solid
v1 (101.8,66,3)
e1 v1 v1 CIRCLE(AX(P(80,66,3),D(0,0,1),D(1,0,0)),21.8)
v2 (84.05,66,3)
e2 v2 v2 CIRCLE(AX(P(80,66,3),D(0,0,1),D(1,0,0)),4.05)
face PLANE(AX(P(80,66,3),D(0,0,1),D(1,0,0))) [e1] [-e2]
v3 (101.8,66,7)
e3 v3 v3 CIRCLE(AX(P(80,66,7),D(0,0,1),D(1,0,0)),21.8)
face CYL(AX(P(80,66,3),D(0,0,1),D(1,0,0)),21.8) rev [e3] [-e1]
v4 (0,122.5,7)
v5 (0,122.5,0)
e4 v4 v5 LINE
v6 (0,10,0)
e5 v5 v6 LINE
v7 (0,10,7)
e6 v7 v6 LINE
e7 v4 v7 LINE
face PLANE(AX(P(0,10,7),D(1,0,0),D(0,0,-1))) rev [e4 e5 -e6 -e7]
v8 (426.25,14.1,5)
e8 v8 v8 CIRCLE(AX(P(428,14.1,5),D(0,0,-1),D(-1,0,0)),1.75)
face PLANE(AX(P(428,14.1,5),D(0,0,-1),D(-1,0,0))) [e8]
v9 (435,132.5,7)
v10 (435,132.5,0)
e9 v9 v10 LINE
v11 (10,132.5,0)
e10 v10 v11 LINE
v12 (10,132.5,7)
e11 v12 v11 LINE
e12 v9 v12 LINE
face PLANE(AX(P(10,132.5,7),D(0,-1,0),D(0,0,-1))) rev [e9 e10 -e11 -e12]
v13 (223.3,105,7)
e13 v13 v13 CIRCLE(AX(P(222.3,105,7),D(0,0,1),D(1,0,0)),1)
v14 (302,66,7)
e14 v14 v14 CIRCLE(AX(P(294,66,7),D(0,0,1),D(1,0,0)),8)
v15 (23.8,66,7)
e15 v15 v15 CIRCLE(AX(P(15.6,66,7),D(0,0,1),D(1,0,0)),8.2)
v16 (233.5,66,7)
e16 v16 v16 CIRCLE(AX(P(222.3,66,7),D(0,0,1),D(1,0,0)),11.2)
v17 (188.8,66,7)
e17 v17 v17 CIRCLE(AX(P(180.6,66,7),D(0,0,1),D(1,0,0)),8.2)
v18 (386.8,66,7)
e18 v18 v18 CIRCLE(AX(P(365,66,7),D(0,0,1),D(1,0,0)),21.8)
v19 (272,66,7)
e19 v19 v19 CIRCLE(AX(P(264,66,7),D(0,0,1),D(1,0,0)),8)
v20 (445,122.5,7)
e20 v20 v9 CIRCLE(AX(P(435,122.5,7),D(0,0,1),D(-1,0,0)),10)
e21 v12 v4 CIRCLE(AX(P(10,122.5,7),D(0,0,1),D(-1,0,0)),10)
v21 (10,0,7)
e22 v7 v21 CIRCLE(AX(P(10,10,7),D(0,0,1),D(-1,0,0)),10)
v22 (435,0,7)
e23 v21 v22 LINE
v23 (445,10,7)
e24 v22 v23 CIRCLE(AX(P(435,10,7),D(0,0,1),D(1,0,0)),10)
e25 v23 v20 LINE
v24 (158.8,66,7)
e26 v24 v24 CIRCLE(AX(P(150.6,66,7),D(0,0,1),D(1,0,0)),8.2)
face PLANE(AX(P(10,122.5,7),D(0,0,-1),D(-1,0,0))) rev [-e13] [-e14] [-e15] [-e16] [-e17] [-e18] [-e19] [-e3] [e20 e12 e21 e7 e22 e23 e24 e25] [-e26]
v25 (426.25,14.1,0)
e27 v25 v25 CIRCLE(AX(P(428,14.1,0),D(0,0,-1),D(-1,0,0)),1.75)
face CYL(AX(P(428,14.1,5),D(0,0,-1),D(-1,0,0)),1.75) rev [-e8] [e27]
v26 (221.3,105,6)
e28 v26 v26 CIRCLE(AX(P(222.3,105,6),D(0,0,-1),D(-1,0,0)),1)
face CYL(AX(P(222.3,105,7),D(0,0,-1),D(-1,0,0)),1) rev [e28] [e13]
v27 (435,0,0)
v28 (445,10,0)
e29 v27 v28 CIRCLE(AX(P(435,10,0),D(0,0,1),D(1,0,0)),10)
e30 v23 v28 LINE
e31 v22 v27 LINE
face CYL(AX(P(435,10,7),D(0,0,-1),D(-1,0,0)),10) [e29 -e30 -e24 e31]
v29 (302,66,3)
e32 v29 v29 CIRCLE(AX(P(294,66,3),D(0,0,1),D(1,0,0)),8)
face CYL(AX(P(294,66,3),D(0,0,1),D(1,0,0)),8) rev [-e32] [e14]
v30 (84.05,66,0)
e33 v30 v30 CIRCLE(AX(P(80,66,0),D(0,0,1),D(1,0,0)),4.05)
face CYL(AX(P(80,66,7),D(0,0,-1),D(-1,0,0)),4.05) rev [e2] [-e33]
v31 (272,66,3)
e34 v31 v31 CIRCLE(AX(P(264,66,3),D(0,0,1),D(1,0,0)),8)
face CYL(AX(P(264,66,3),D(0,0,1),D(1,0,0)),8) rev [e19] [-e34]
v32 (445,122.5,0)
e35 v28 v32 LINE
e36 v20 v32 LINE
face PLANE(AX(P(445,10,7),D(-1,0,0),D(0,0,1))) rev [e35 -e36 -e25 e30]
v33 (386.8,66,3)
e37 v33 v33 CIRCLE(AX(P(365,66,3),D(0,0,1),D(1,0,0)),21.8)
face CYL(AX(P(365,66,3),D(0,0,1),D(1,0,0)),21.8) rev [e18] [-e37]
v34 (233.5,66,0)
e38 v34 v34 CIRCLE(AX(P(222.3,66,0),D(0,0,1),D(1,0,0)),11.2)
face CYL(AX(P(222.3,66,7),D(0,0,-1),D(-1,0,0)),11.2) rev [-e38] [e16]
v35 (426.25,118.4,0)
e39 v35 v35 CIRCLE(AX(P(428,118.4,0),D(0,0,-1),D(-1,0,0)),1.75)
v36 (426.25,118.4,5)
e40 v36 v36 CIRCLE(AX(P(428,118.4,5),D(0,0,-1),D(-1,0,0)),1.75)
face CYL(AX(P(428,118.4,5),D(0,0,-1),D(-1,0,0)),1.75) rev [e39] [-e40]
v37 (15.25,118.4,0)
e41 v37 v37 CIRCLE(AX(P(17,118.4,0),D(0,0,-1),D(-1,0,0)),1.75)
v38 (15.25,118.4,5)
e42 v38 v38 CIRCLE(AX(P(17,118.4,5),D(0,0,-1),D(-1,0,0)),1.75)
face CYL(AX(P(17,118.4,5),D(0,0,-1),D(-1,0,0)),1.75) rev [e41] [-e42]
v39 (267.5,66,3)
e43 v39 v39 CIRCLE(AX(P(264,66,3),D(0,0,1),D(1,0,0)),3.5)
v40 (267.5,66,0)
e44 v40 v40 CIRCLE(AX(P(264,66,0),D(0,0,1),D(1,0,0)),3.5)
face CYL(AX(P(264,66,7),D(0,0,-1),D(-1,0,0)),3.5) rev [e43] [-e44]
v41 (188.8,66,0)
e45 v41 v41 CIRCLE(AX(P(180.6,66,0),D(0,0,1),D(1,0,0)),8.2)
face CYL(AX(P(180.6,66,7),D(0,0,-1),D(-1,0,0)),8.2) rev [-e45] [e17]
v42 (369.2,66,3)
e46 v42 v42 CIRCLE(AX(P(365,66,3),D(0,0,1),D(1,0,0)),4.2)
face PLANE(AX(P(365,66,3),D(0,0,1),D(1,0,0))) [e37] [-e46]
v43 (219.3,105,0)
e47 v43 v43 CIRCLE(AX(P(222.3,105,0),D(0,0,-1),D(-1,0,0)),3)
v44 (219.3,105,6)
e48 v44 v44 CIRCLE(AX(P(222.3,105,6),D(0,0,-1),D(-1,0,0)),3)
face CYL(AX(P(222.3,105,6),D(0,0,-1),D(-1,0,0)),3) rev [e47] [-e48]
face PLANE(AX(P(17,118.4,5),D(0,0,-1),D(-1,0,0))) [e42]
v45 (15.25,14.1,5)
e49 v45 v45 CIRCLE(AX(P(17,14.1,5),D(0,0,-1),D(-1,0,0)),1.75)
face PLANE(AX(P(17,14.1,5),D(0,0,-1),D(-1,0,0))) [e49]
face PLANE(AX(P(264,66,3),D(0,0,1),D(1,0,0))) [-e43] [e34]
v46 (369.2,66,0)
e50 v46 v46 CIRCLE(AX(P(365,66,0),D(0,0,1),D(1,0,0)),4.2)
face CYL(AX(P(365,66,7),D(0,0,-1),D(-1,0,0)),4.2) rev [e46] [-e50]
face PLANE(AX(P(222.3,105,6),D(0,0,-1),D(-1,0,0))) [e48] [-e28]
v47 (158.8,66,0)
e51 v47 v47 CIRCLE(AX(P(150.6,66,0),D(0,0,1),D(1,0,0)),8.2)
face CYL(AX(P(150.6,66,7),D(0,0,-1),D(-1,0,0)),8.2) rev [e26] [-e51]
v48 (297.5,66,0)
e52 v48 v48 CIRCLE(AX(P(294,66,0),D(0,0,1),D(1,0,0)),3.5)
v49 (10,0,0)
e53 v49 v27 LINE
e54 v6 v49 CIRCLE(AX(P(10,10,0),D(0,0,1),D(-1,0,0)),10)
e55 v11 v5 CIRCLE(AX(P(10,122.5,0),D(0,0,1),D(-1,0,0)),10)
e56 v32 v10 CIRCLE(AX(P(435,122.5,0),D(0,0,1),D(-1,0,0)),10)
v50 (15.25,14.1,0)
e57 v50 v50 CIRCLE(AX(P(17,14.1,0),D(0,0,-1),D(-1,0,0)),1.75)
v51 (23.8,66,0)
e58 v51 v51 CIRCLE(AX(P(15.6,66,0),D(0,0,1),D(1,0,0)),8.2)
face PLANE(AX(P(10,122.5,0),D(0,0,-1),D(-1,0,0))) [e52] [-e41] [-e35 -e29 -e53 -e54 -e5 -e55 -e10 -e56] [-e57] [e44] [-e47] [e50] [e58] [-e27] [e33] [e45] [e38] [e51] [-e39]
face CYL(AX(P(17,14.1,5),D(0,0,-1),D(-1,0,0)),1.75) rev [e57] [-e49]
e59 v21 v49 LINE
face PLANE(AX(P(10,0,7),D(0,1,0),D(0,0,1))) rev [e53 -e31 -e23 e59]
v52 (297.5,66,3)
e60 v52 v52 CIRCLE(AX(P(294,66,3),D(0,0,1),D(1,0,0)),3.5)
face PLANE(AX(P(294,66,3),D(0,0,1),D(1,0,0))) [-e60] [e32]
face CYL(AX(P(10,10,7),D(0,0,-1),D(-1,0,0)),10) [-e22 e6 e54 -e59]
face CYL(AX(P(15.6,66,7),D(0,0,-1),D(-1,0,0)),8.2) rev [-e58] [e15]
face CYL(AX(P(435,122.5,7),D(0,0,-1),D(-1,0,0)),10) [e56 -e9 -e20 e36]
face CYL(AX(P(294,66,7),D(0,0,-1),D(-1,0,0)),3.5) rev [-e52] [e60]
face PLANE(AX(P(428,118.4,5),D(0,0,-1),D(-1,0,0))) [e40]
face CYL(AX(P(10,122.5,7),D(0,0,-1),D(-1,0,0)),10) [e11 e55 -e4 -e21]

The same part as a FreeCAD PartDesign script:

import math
import FreeCAD as App
import Part
import Sketcher

V = App.Vector

doc = App.newDocument("Part")
body = doc.addObject("PartDesign::Body", "Body")

# Sketch on XY plane
sketch1 = body.newObject("Sketcher::SketchObject", "Sketch")
sketch1.AttachmentSupport = (doc.getObject("XY_Plane"), [""])
sketch1.MapMode = "FlatFace"
sketch1.addGeometry([
    Part.LineSegment(V(10, 0, 0), V(435, 0, 0)),  # 0
    Part.ArcOfCircle(Part.Circle(V(435, 10, 0), V(0, 0, 1), 10), math.radians(-90), math.radians(0)),  # 1
    Part.LineSegment(V(445, 10, 0), V(445, 122.5, 0)),  # 2
    Part.ArcOfCircle(Part.Circle(V(435, 122.5, 0), V(0, 0, 1), 10), math.radians(0), math.radians(90)),  # 3
    Part.LineSegment(V(435, 132.5, 0), V(10, 132.5, 0)),  # 4
    Part.ArcOfCircle(Part.Circle(V(10, 122.5, 0), V(0, 0, 1), 10), math.radians(90), math.radians(180)),  # 5
    Part.LineSegment(V(0, 122.5, 0), V(0, 10, 0)),  # 6
    Part.ArcOfCircle(Part.Circle(V(10, 10, 0), V(0, 0, 1), 10), math.radians(180), math.radians(270)),  # 7
    Part.Circle(V(15.6, 66, 0), V(0, 0, 1), 8.2),  # 8
    Part.Circle(V(80, 66, 0), V(0, 0, 1), 4),  # 9
    Part.Circle(V(150.6, 66, 0), V(0, 0, 1), 8.2),  # 10
    Part.Circle(V(180.6, 66, 0), V(0, 0, 1), 8.2),  # 11
    Part.Circle(V(222.3, 66, 0), V(0, 0, 1), 11.2),  # 12
    Part.Circle(V(264, 66, 0), V(0, 0, 1), 3.5),  # 13
    Part.Circle(V(294, 66, 0), V(0, 0, 1), 3.5),  # 14
    Part.Circle(V(365, 66, 0), V(0, 0, 1), 4.2),  # 15
    Part.Circle(V(222.3, 105, 0), V(0, 0, 1), 1),  # 16
], False)
sketch1.addConstraint([
    Sketcher.Constraint("Tangent", 0, 2, 1, 1),
    Sketcher.Constraint("Tangent", 1, 2, 2, 1),
    Sketcher.Constraint("Tangent", 2, 2, 3, 1),
    Sketcher.Constraint("Tangent", 3, 2, 4, 1),
    Sketcher.Constraint("Tangent", 4, 2, 5, 1),
    Sketcher.Constraint("Tangent", 5, 2, 6, 1),
    Sketcher.Constraint("Tangent", 6, 2, 7, 1),
    Sketcher.Constraint("Tangent", 7, 2, 0, 1),
    Sketcher.Constraint("Horizontal", 0),
    Sketcher.Constraint("Vertical", 2),
    Sketcher.Constraint("Horizontal", 4),
    Sketcher.Constraint("Vertical", 6),
    Sketcher.Constraint("Equal", 1, 3),
    Sketcher.Constraint("Equal", 3, 5),
    Sketcher.Constraint("Equal", 5, 7),
    Sketcher.Constraint("Equal", 8, 10),
    Sketcher.Constraint("Equal", 10, 11),
    Sketcher.Constraint("Equal", 13, 14),
    Sketcher.Constraint("PointOnObject", 0, 2, -1),
    Sketcher.Constraint("PointOnObject", 5, 2, -2),
    Sketcher.Constraint("Horizontal", 8, 3, 9, 3),
    Sketcher.Constraint("Horizontal", 9, 3, 10, 3),
    Sketcher.Constraint("Horizontal", 10, 3, 11, 3),
    Sketcher.Constraint("Horizontal", 11, 3, 12, 3),
    Sketcher.Constraint("Horizontal", 12, 3, 13, 3),
    Sketcher.Constraint("Horizontal", 13, 3, 14, 3),
    Sketcher.Constraint("Horizontal", 14, 3, 15, 3),
    Sketcher.Constraint("Vertical", 12, 3, 16, 3),
    Sketcher.Constraint("Diameter", 13, 7.0),
    Sketcher.Constraint("Diameter", 16, 2.0),
    Sketcher.Constraint("Radius", 1, 10.0),
    Sketcher.Constraint("Diameter", 8, 16.4),
    Sketcher.Constraint("Diameter", 9, 8.1),
    Sketcher.Constraint("Diameter", 12, 22.4),
    Sketcher.Constraint("Diameter", 15, 8.4),
    Sketcher.Constraint("DistanceX", 0, 1, 0, 2, 425.0),
    Sketcher.Constraint("DistanceY", 2, 1, 2, 2, 112.5),
    Sketcher.Constraint("DistanceY", -1, 1, 8, 3, 66.0),
    Sketcher.Constraint("DistanceX", -1, 1, 9, 3, 80.0),
    Sketcher.Constraint("DistanceX", -1, 1, 13, 3, 264.0),
    Sketcher.Constraint("DistanceX", -1, 1, 14, 3, 294.0),
    Sketcher.Constraint("DistanceX", -1, 1, 15, 3, 365.0),
    Sketcher.Constraint("DistanceY", -1, 1, 16, 3, 105.0),
    Sketcher.Constraint("DistanceX", 8, 3, 10, 3, 135.0),
    Sketcher.Constraint("DistanceX", 10, 3, 11, 3, 30.0),
    Sketcher.Constraint("DistanceX", -1, 1, 8, 3, 15.6),
    Sketcher.Constraint("DistanceX", -1, 1, 12, 3, 222.3),
])
pad1 = body.newObject("PartDesign::Pad", "Pad")
pad1.Profile = sketch1
pad1.Length = 7

# Sketch on XY plane
sketch2 = body.newObject("Sketcher::SketchObject", "Sketch001")
sketch2.AttachmentSupport = (doc.getObject("XY_Plane"), [""])
sketch2.MapMode = "FlatFace"
sketch2.AttachmentOffset = App.Placement(V(0, 0, 7), App.Rotation())
sketch2.addGeometry([
    Part.Circle(V(80, 66, 0), V(0, 0, 1), 22),
    Part.Circle(V(365, 66, 0), V(0, 0, 1), 22),
    Part.Circle(V(264, 66, 0), V(0, 0, 1), 8),
    Part.Circle(V(294, 66, 0), V(0, 0, 1), 8),
], False)
sketch2.addConstraint([
    Sketcher.Constraint("Equal", 0, 1),
    Sketcher.Constraint("Equal", 2, 3),
    Sketcher.Constraint("Horizontal", 0, 3, 1, 3),
    Sketcher.Constraint("Horizontal", 1, 3, 2, 3),
    Sketcher.Constraint("Horizontal", 2, 3, 3, 3),
    Sketcher.Constraint("Diameter", 2, 16.0),
    Sketcher.Constraint("Diameter", 0, 43.6),
    Sketcher.Constraint("DistanceX", -1, 1, 0, 3, 80.0),
    Sketcher.Constraint("DistanceY", -1, 1, 0, 3, 66.0),
    Sketcher.Constraint("DistanceX", -1, 1, 1, 3, 365.0),
    Sketcher.Constraint("DistanceX", -1, 1, 2, 3, 264.0),
    Sketcher.Constraint("DistanceX", -1, 1, 3, 3, 294.0),
])
pocket1 = body.newObject("PartDesign::Pocket", "Pocket")
pocket1.Profile = sketch2
pocket1.Length = 4

# Sketch on XY plane
sketch3 = body.newObject("Sketcher::SketchObject", "Sketch002")
sketch3.AttachmentSupport = (doc.getObject("XY_Plane"), [""])
sketch3.MapMode = "FlatFace"
sketch3.addGeometry(Part.Circle(V(222.3, 105, 0), V(0, 0, 1), 3), False)
sketch3.addConstraint([
    Sketcher.Constraint("Diameter", 0, 6.0),
    Sketcher.Constraint("DistanceY", -1, 1, 0, 3, 105.0),
    Sketcher.Constraint("DistanceX", -1, 1, 0, 3, 222.3),
])
pocket2 = body.newObject("PartDesign::Pocket", "Pocket001")
pocket2.Profile = sketch3
pocket2.Length = 6
pocket2.Reversed = True

# Sketch on XY plane
sketch4 = body.newObject("Sketcher::SketchObject", "Sketch003")
sketch4.AttachmentSupport = (doc.getObject("XY_Plane"), [""])
sketch4.MapMode = "FlatFace"
sketch4.addGeometry([
    Part.Circle(V(17, 118.4, 0), V(0, 0, 1), 1.8),
    Part.Circle(V(17, 14.1, 0), V(0, 0, 1), 1.8),
    Part.Circle(V(428, 14.1, 0), V(0, 0, 1), 1.8),
    Part.Circle(V(428, 118.4, 0), V(0, 0, 1), 1.8),
], False)
sketch4.addConstraint([
    Sketcher.Constraint("Equal", 0, 1),
    Sketcher.Constraint("Equal", 1, 2),
    Sketcher.Constraint("Equal", 2, 3),
    Sketcher.Constraint("Horizontal", 1, 3, 2, 3),
    Sketcher.Constraint("Horizontal", 0, 3, 3, 3),
    Sketcher.Constraint("Vertical", 0, 3, 1, 3),
    Sketcher.Constraint("Vertical", 2, 3, 3, 3),
    Sketcher.Constraint("Diameter", 0, 3.5),
    Sketcher.Constraint("DistanceX", -1, 1, 0, 3, 17.0),
    Sketcher.Constraint("DistanceX", -1, 1, 2, 3, 428.0),
    Sketcher.Constraint("DistanceY", -1, 1, 0, 3, 118.4),
    Sketcher.Constraint("DistanceY", -1, 1, 1, 3, 14.1),
])
pocket3 = body.newObject("PartDesign::Pocket", "Pocket002")
pocket3.Profile = sketch4
pocket3.Length = 5
pocket3.Reversed = True

doc.recompute()
